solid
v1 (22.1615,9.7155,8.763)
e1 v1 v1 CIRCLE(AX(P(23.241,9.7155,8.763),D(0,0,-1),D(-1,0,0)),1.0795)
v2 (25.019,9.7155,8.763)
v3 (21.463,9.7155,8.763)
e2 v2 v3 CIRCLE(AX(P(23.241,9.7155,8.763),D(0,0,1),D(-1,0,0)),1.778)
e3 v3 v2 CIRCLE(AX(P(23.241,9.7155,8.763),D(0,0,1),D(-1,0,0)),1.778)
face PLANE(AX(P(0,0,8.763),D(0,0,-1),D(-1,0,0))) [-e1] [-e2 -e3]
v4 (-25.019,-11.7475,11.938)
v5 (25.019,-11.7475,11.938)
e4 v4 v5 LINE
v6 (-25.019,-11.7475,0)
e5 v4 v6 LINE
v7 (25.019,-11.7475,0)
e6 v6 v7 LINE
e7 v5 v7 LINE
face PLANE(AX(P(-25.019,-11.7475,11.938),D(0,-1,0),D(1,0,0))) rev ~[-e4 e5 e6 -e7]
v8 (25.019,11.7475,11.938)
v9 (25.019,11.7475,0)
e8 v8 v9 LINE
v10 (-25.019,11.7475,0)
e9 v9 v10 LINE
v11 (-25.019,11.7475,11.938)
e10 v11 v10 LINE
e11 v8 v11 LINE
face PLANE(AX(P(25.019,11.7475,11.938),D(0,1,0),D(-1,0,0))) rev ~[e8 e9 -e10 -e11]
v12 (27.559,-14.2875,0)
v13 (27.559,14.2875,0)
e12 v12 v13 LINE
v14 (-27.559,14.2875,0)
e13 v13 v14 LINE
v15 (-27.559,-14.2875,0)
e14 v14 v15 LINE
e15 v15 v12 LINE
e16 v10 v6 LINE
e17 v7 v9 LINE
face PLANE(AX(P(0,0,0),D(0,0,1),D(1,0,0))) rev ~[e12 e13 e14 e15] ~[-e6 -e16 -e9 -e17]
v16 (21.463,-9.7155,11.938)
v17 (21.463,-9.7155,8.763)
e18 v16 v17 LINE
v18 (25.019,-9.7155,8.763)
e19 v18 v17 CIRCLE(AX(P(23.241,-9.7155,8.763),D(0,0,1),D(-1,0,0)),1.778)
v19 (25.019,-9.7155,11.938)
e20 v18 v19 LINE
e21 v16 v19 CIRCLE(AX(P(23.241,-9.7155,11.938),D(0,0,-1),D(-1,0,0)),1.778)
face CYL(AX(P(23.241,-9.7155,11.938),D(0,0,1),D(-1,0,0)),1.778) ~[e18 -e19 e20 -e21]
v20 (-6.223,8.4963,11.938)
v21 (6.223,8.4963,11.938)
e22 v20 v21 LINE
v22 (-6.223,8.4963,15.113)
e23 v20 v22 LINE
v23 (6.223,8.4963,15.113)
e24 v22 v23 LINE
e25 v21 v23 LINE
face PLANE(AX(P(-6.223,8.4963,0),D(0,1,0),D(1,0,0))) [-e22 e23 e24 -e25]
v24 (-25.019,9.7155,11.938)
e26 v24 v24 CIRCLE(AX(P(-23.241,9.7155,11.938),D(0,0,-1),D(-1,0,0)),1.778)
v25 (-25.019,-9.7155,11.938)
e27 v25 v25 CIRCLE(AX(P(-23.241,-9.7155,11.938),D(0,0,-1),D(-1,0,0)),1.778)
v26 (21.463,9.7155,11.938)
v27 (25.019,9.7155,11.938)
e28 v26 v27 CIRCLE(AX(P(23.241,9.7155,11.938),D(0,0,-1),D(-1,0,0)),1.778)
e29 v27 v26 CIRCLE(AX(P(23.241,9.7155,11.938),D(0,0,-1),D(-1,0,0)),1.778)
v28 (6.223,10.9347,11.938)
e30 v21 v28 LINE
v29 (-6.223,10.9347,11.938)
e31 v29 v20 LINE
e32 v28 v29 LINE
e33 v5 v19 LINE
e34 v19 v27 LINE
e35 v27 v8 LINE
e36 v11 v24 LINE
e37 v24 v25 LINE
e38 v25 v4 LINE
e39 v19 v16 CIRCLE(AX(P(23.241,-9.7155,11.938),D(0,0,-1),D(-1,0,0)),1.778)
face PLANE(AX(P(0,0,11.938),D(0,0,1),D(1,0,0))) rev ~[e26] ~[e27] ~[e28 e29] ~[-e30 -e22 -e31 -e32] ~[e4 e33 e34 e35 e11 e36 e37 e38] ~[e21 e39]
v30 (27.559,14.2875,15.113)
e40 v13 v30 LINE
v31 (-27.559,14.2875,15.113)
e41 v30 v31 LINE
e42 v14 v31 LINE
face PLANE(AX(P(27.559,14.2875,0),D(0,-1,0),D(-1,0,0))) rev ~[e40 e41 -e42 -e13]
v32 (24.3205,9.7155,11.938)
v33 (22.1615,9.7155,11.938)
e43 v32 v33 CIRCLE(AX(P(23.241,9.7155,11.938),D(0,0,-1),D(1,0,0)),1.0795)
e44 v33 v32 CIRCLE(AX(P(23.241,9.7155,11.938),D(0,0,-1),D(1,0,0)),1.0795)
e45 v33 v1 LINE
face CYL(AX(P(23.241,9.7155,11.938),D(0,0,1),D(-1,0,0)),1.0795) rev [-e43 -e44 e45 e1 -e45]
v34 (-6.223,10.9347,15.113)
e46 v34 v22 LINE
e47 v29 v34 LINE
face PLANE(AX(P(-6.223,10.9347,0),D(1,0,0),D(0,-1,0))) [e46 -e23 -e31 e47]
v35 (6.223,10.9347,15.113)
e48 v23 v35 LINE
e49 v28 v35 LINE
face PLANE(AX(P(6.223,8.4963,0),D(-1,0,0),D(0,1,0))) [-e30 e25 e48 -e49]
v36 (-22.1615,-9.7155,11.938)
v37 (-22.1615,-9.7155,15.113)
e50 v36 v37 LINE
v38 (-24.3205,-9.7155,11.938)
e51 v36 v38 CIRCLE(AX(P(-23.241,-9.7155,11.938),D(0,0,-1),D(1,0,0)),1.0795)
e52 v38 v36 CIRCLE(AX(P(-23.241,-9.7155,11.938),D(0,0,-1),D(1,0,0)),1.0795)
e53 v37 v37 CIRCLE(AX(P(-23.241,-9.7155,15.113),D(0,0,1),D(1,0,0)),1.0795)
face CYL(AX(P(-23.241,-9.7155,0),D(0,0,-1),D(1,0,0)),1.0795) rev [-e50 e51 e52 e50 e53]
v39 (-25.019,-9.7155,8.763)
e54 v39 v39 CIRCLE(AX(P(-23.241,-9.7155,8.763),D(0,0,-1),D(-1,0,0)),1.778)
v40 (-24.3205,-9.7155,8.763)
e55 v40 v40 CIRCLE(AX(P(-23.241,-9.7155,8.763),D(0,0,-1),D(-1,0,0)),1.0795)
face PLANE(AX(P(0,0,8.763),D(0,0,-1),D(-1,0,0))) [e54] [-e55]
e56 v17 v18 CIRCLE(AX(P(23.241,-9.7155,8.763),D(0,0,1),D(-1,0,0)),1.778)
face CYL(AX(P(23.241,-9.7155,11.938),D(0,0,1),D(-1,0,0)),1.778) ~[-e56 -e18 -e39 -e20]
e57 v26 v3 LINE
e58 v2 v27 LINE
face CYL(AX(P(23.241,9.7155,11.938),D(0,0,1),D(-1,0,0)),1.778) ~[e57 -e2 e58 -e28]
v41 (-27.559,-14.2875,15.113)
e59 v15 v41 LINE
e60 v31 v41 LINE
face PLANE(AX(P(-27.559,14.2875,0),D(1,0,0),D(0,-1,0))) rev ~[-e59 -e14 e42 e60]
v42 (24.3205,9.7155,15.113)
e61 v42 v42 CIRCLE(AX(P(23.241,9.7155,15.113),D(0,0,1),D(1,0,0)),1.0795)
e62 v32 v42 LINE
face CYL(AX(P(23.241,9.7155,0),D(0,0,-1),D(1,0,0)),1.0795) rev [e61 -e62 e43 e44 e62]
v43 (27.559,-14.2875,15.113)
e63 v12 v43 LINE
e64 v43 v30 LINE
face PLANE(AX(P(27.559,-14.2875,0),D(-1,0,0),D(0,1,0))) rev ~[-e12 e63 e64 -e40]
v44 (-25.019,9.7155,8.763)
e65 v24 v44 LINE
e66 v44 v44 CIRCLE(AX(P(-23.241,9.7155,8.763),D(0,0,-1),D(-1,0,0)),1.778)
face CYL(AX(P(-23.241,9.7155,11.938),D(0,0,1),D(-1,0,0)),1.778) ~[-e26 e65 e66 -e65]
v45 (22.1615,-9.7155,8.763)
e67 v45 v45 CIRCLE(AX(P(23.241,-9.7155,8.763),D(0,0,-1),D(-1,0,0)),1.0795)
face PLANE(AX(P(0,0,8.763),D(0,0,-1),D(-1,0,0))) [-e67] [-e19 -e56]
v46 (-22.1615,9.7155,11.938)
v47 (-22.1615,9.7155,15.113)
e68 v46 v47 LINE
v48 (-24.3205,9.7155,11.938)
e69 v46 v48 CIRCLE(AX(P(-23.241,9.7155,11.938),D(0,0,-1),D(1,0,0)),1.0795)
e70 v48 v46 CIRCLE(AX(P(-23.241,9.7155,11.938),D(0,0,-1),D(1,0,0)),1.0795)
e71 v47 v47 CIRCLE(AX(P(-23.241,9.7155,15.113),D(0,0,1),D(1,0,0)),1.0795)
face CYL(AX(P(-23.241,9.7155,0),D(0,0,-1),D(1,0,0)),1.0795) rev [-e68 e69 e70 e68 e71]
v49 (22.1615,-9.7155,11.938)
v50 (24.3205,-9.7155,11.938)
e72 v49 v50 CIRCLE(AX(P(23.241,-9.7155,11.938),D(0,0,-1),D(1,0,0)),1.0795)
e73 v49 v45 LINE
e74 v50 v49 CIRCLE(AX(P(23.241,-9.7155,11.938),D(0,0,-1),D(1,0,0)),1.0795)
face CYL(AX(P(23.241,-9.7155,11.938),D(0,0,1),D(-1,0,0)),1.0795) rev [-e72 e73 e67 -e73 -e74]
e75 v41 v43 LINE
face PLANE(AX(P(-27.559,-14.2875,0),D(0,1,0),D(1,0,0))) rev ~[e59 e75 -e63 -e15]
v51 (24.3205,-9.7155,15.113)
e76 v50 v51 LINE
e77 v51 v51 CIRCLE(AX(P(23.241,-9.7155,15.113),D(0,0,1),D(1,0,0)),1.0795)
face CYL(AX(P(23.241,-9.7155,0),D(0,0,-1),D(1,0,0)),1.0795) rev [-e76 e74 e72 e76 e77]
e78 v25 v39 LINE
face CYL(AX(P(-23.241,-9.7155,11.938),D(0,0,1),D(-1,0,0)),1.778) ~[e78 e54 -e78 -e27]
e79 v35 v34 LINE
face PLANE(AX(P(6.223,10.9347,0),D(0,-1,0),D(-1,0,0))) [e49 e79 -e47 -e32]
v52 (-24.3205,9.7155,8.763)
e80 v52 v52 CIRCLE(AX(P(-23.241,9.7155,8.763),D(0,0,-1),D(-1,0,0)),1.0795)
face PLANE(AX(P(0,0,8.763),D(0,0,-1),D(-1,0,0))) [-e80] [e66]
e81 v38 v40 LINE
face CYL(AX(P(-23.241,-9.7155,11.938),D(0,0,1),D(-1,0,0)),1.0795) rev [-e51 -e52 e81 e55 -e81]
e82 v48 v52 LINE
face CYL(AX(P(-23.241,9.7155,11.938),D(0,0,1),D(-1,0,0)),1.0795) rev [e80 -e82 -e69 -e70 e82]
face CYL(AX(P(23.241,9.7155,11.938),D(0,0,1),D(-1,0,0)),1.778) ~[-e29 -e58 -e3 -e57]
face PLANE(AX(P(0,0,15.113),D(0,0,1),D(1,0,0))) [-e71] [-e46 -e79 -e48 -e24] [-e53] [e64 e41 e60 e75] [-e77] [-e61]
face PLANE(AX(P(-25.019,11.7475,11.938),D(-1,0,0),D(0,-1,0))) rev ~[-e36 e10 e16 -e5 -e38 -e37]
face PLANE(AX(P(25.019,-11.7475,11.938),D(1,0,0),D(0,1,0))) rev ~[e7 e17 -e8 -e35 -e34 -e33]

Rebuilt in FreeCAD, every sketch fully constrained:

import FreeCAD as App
import Part
import Sketcher
from FreeCAD import Vector
Q = App.Units.Quantity

doc = App.newDocument("Part")
params = doc.addObject("Spreadsheet::Sheet", "Params")
for row, (alias, value) in enumerate([
    ("sketch1_diameter", "0.085 in"),
    ("sketch1_width", "2.17 in"),
    ("sketch1_width2", "0.49 in"),
    ("sketch1_height", "1.125 in"),
    ("sketch1_height2", "0.096 in"),
    ("pad1_length", "0.595 in"),
    ("sketch2_width", "1.97 in"),
    ("sketch2_height", "0.925 in"),
    ("pocket1_length", "0.495 in"),
    ("sketch3_diameter", "0.14 in"),
    ("sketch3_diameter2", "0.085 in"),
    ("pad2_length", "0.125 in"),
], start=1):
    params.set(f"A{row}", alias)
    params.set(f"B{row}", "=" + value)
    params.setAlias(f"B{row}", alias)

body = doc.addObject("PartDesign::Body", "Body")

# Sketch on XY plane
sketch1 = body.newObject("Sketcher::SketchObject", "Sketch")
sketch1.AttachmentSupport = (doc.getObject("XY_Plane"), [""])
sketch1.MapMode = "FlatFace"
sketch1.addGeometry([
    Part.LineSegment(Vector(-27.559, 14.2875, 0), Vector(-27.559, -14.2875, 0)),  # 0
    Part.LineSegment(Vector(-27.559, -14.2875, 0), Vector(27.559, -14.2875, 0)),  # 1
    Part.LineSegment(Vector(27.559, -14.2875, 0), Vector(27.559, 14.2875, 0)),  # 2
    Part.LineSegment(Vector(27.559, 14.2875, 0), Vector(-27.559, 14.2875, 0)),  # 3
    Part.Circle(Vector(-23.241, -9.7155, 0), Vector(0, 0, 1), 1.0795),  # 4
    Part.Circle(Vector(23.241, -9.7155, 0), Vector(0, 0, 1), 1.0795),  # 5
    Part.Circle(Vector(-23.241, 9.7155, 0), Vector(0, 0, 1), 1.0795),  # 6
    Part.LineSegment(Vector(6.223, 8.4963, 0), Vector(-6.223, 8.4963, 0)),  # 7
    Part.LineSegment(Vector(-6.223, 8.4963, 0), Vector(-6.223, 10.9347, 0)),  # 8
    Part.LineSegment(Vector(-6.223, 10.9347, 0), Vector(6.223, 10.9347, 0)),  # 9
    Part.LineSegment(Vector(6.223, 10.9347, 0), Vector(6.223, 8.4963, 0)),  # 10
    Part.Circle(Vector(23.241, 9.7155, 0), Vector(0, 0, 1), 1.0795),  # 11
], False)
sketch1.addConstraint([
    Sketcher.Constraint("Coincident", 0, 2, 1, 1),
    Sketcher.Constraint("Coincident", 1, 2, 2, 1),
    Sketcher.Constraint("Coincident", 2, 2, 3, 1),
    Sketcher.Constraint("Coincident", 3, 2, 0, 1),
    Sketcher.Constraint("Coincident", 7, 2, 8, 1),
    Sketcher.Constraint("Coincident", 8, 2, 9, 1),
    Sketcher.Constraint("Coincident", 9, 2, 10, 1),
    Sketcher.Constraint("Coincident", 10, 2, 7, 1),
    Sketcher.Constraint("Vertical", 0),
    Sketcher.Constraint("Horizontal", 1),
    Sketcher.Constraint("Vertical", 2),
    Sketcher.Constraint("Horizontal", 3),
    Sketcher.Constraint("Horizontal", 7),
    Sketcher.Constraint("Vertical", 8),
    Sketcher.Constraint("Horizontal", 9),
    Sketcher.Constraint("Vertical", 10),
    Sketcher.Constraint("Equal", 4, 5),
    Sketcher.Constraint("Equal", 5, 6),
    Sketcher.Constraint("Equal", 6, 11),
    Sketcher.Constraint("Symmetric", 5, 3, 6, 3, -1, 1),
    Sketcher.Constraint("Symmetric", 4, 3, 11, 3, -1, 1),
    Sketcher.Constraint("Symmetric", 0, 2, 2, 2, -1, 1),
    Sketcher.Constraint("Symmetric", 4, 3, 5, 3, -2),
    Sketcher.Constraint("Diameter", 4, Q("0.085 in")),
    Sketcher.Constraint("DistanceX", 1, 1, 1, 2, Q("2.17 in")),
    Sketcher.Constraint("DistanceX", 7, 2, 7, 1, Q("0.49 in")),
    Sketcher.Constraint("DistanceY", 0, 2, 0, 1, Q("1.125 in")),
    Sketcher.Constraint("DistanceY", 8, 1, 8, 2, Q("0.096 in")),
    Sketcher.Constraint("DistanceX", 0, 2, 4, 3, Q("0.17 in")),
    Sketcher.Constraint("DistanceY", 0, 2, 4, 3, Q("0.18 in")),
    Sketcher.Constraint("DistanceX", 6, 3, 7, 2, Q("0.67 in")),
    Sketcher.Constraint("DistanceY", 7, 2, 6, 3, Q("0.048 in")),
])
sketch1.setExpression("Constraints[23]", "Params.sketch1_diameter")
sketch1.setExpression("Constraints[24]", "Params.sketch1_width")
sketch1.setExpression("Constraints[25]", "Params.sketch1_width2")
sketch1.setExpression("Constraints[26]", "Params.sketch1_height")
sketch1.setExpression("Constraints[27]", "Params.sketch1_height2")
pad1 = body.newObject("PartDesign::Pad", "Pad")
pad1.Profile = sketch1
pad1.setExpression("Length", "Params.pad1_length")

# Sketch on XY plane
sketch2 = body.newObject("Sketcher::SketchObject", "Sketch001")
sketch2.AttachmentSupport = (doc.getObject("XY_Plane"), [""])
sketch2.MapMode = "FlatFace"
sketch2.AttachmentOffset = App.Placement(Vector(0, 0, 0.47 * 25.4), App.Rotation())
sketch2.addGeometry([
    Part.LineSegment(Vector(-25.019, 11.7475, 0), Vector(-25.019, -11.7475, 0)),
    Part.LineSegment(Vector(-25.019, -11.7475, 0), Vector(25.019, -11.7475, 0)),
    Part.LineSegment(Vector(25.019, -11.7475, 0), Vector(25.019, 11.7475, 0)),
    Part.LineSegment(Vector(25.019, 11.7475, 0), Vector(-25.019, 11.7475, 0)),
], False)
sketch2.addConstraint([
    Sketcher.Constraint("Coincident", 0, 2, 1, 1),
    Sketcher.Constraint("Coincident", 1, 2, 2, 1),
    Sketcher.Constraint("Coincident", 2, 2, 3, 1),
    Sketcher.Constraint("Coincident", 3, 2, 0, 1),
    Sketcher.Constraint("Vertical", 0),
    Sketcher.Constraint("Horizontal", 1),
    Sketcher.Constraint("Vertical", 2),
    Sketcher.Constraint("Horizontal", 3),
    Sketcher.Constraint("Symmetric", 0, 2, 2, 2, -1, 1),
    Sketcher.Constraint("DistanceX", 1, 1, 1, 2, Q("1.97 in")),
    Sketcher.Constraint("DistanceY", 0, 2, 0, 1, Q("0.925 in")),
])
sketch2.setExpression("Constraints[9]", "Params.sketch2_width")
sketch2.setExpression("Constraints[10]", "Params.sketch2_height")
pocket1 = body.newObject("PartDesign::Pocket", "Pocket")
pocket1.Profile = sketch2
pocket1.setExpression("Length", "Params.pocket1_length")

# Sketch on XY plane
sketch3 = body.newObject("Sketcher::SketchObject", "Sketch002")
sketch3.AttachmentSupport = (doc.getObject("XY_Plane"), [""])
sketch3.MapMode = "FlatFace"
sketch3.AttachmentOffset = App.Placement(Vector(0, 0, 0.47 * 25.4), App.Rotation())
sketch3.addGeometry([
    Part.Circle(Vector(23.241, 9.7155, 0), Vector(0, 0, 1), 1.778),  # 0
    Part.Circle(Vector(23.241, 9.7155, 0), Vector(0, 0, 1), 1.0795),  # 1
    Part.Circle(Vector(23.241, -9.7155, 0), Vector(0, 0, 1), 1.778),  # 2
    Part.Circle(Vector(23.241, -9.7155, 0), Vector(0, 0, 1), 1.0795),  # 3
    Part.Circle(Vector(-23.241, 9.7155, 0), Vector(0, 0, 1), 1.778),  # 4
    Part.Circle(Vector(-23.241, 9.7155, 0), Vector(0, 0, 1), 1.0795),  # 5
    Part.Circle(Vector(-23.241, -9.7155, 0), Vector(0, 0, 1), 1.778),  # 6
    Part.Circle(Vector(-23.241, -9.7155, 0), Vector(0, 0, 1), 1.0795),  # 7
], False)
sketch3.addConstraint([
    Sketcher.Constraint("Coincident", 1, 3, 0, 3),
    Sketcher.Constraint("Coincident", 3, 3, 2, 3),
    Sketcher.Constraint("Coincident", 5, 3, 4, 3),
    Sketcher.Constraint("Coincident", 7, 3, 6, 3),
    Sketcher.Constraint("Equal", 0, 2),
    Sketcher.Constraint("Equal", 1, 3),
    Sketcher.Constraint("Equal", 2, 4),
    Sketcher.Constraint("Equal", 3, 5),
    Sketcher.Constraint("Equal", 4, 6),
    Sketcher.Constraint("Equal", 5, 7),
    Sketcher.Constraint("Symmetric", 2, 3, 4, 3, -1, 1),
    Sketcher.Constraint("Symmetric", 0, 3, 6, 3, -1, 1),
    Sketcher.Constraint("Symmetric", 0, 3, 4, 3, -2),
    Sketcher.Constraint("Diameter", 0, Q("0.14 in")),
    Sketcher.Constraint("Diameter", 1, Q("0.085 in")),
    Sketcher.Constraint("DistanceX", 4, 3, 0, 3, Q("1.83 in")),
    Sketcher.Constraint("DistanceY", 2, 3, 0, 3, Q("0.765 in")),
])
sketch3.setExpression("Constraints[13]", "Params.sketch3_diameter")
sketch3.setExpression("Constraints[14]", "Params.sketch3_diameter2")
pad2 = body.newObject("PartDesign::Pad", "Pad001")
pad2.Profile = sketch3
pad2.setExpression("Length", "Params.pad2_length")
pad2.Reversed = True

doc.recompute()
